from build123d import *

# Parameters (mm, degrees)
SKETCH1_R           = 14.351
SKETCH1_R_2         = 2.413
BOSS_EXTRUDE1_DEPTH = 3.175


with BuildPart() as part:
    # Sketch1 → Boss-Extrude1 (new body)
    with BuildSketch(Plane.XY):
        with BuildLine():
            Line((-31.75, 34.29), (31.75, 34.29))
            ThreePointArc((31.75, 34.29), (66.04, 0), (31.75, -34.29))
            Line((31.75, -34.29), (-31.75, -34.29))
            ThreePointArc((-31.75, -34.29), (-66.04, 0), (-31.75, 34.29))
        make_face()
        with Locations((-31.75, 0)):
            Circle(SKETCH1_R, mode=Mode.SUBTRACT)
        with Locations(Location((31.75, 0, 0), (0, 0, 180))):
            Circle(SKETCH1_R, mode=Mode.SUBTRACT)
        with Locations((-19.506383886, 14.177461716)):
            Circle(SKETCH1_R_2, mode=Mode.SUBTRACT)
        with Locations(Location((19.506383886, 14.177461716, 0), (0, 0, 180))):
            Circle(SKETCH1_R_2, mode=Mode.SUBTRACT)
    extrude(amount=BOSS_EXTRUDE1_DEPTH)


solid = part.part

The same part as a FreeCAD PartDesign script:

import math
import FreeCAD as App
import Part
import Sketcher
Q = App.Units.Quantity

doc = App.newDocument("Part")
body = doc.addObject("PartDesign::Body", "Body")

sketch1 = body.newObject("Sketcher::SketchObject", "Sketch")
sketch1.AttachmentSupport = (doc.getObject("XY_Plane"), [""])
sketch1.MapMode = "FlatFace"
sketch1.addGeometry([
    Part.LineSegment(App.Vector(31.8, 34.3, 0), App.Vector(-31.8, 34.3, 0)),
    Part.ArcOfCircle(Part.Circle(App.Vector(-31.8, 0, 0), App.Vector(0, 0, 1), 34.3), math.radians(90), math.radians(270)),
    Part.LineSegment(App.Vector(-31.8, -34.3, 0), App.Vector(31.8, -34.3, 0)),
    Part.ArcOfCircle(Part.Circle(App.Vector(31.8, 0, 0), App.Vector(0, 0, 1), 34.3), math.radians(-90), math.radians(90)),
    Part.Circle(App.Vector(31.8, 0, 0), App.Vector(0, 0, 1), 14.4),
    Part.Circle(App.Vector(-31.8, 0, 0), App.Vector(0, 0, 1), 14.4),
    Part.Circle(App.Vector(19.5, 14.2, 0), App.Vector(0, 0, 1), 2.4),
    Part.Circle(App.Vector(-19.5, 14.2, 0), App.Vector(0, 0, 1), 2.4),
], False)
sketch1.addConstraint([
    Sketcher.Constraint("Tangent", 0, 2, 1, 1),
    Sketcher.Constraint("Tangent", 1, 2, 2, 1),
    Sketcher.Constraint("Tangent", 2, 2, 3, 1),
    Sketcher.Constraint("Tangent", 3, 2, 0, 1),
    Sketcher.Constraint("Horizontal", 0),
    Sketcher.Constraint("Horizontal", 2),
    Sketcher.Constraint("Coincident", 4, 3, 3, 3),
    Sketcher.Constraint("Coincident", 5, 3, 1, 3),
    Sketcher.Constraint("Equal", 4, 5),
    Sketcher.Constraint("Equal", 6, 7),
    Sketcher.Constraint("Symmetric", 1, 3, 3, 3, -1, 1),
    Sketcher.Constraint("Symmetric", 6, 3, 7, 3, -2),
    Sketcher.Constraint("Diameter", 4, Q("1.13 in")),
    Sketcher.Constraint("Diameter", 6, Q("0.19 in")),
    Sketcher.Constraint("Radius", 1, Q("1.35 in")),
    Sketcher.Constraint("DistanceX", 0, 2, 0, 1, Q("2.5 in")),
    Sketcher.Constraint("DistanceY", -1, 1, 6, 3, 14.177462),
    Sketcher.Constraint("DistanceX", -1, 1, 6, 3, 19.506384),
])
pad1 = body.newObject("PartDesign::Pad", "Pad")
pad1.Profile = sketch1
pad1.Length = Q("0.125 in")

doc.recompute()
